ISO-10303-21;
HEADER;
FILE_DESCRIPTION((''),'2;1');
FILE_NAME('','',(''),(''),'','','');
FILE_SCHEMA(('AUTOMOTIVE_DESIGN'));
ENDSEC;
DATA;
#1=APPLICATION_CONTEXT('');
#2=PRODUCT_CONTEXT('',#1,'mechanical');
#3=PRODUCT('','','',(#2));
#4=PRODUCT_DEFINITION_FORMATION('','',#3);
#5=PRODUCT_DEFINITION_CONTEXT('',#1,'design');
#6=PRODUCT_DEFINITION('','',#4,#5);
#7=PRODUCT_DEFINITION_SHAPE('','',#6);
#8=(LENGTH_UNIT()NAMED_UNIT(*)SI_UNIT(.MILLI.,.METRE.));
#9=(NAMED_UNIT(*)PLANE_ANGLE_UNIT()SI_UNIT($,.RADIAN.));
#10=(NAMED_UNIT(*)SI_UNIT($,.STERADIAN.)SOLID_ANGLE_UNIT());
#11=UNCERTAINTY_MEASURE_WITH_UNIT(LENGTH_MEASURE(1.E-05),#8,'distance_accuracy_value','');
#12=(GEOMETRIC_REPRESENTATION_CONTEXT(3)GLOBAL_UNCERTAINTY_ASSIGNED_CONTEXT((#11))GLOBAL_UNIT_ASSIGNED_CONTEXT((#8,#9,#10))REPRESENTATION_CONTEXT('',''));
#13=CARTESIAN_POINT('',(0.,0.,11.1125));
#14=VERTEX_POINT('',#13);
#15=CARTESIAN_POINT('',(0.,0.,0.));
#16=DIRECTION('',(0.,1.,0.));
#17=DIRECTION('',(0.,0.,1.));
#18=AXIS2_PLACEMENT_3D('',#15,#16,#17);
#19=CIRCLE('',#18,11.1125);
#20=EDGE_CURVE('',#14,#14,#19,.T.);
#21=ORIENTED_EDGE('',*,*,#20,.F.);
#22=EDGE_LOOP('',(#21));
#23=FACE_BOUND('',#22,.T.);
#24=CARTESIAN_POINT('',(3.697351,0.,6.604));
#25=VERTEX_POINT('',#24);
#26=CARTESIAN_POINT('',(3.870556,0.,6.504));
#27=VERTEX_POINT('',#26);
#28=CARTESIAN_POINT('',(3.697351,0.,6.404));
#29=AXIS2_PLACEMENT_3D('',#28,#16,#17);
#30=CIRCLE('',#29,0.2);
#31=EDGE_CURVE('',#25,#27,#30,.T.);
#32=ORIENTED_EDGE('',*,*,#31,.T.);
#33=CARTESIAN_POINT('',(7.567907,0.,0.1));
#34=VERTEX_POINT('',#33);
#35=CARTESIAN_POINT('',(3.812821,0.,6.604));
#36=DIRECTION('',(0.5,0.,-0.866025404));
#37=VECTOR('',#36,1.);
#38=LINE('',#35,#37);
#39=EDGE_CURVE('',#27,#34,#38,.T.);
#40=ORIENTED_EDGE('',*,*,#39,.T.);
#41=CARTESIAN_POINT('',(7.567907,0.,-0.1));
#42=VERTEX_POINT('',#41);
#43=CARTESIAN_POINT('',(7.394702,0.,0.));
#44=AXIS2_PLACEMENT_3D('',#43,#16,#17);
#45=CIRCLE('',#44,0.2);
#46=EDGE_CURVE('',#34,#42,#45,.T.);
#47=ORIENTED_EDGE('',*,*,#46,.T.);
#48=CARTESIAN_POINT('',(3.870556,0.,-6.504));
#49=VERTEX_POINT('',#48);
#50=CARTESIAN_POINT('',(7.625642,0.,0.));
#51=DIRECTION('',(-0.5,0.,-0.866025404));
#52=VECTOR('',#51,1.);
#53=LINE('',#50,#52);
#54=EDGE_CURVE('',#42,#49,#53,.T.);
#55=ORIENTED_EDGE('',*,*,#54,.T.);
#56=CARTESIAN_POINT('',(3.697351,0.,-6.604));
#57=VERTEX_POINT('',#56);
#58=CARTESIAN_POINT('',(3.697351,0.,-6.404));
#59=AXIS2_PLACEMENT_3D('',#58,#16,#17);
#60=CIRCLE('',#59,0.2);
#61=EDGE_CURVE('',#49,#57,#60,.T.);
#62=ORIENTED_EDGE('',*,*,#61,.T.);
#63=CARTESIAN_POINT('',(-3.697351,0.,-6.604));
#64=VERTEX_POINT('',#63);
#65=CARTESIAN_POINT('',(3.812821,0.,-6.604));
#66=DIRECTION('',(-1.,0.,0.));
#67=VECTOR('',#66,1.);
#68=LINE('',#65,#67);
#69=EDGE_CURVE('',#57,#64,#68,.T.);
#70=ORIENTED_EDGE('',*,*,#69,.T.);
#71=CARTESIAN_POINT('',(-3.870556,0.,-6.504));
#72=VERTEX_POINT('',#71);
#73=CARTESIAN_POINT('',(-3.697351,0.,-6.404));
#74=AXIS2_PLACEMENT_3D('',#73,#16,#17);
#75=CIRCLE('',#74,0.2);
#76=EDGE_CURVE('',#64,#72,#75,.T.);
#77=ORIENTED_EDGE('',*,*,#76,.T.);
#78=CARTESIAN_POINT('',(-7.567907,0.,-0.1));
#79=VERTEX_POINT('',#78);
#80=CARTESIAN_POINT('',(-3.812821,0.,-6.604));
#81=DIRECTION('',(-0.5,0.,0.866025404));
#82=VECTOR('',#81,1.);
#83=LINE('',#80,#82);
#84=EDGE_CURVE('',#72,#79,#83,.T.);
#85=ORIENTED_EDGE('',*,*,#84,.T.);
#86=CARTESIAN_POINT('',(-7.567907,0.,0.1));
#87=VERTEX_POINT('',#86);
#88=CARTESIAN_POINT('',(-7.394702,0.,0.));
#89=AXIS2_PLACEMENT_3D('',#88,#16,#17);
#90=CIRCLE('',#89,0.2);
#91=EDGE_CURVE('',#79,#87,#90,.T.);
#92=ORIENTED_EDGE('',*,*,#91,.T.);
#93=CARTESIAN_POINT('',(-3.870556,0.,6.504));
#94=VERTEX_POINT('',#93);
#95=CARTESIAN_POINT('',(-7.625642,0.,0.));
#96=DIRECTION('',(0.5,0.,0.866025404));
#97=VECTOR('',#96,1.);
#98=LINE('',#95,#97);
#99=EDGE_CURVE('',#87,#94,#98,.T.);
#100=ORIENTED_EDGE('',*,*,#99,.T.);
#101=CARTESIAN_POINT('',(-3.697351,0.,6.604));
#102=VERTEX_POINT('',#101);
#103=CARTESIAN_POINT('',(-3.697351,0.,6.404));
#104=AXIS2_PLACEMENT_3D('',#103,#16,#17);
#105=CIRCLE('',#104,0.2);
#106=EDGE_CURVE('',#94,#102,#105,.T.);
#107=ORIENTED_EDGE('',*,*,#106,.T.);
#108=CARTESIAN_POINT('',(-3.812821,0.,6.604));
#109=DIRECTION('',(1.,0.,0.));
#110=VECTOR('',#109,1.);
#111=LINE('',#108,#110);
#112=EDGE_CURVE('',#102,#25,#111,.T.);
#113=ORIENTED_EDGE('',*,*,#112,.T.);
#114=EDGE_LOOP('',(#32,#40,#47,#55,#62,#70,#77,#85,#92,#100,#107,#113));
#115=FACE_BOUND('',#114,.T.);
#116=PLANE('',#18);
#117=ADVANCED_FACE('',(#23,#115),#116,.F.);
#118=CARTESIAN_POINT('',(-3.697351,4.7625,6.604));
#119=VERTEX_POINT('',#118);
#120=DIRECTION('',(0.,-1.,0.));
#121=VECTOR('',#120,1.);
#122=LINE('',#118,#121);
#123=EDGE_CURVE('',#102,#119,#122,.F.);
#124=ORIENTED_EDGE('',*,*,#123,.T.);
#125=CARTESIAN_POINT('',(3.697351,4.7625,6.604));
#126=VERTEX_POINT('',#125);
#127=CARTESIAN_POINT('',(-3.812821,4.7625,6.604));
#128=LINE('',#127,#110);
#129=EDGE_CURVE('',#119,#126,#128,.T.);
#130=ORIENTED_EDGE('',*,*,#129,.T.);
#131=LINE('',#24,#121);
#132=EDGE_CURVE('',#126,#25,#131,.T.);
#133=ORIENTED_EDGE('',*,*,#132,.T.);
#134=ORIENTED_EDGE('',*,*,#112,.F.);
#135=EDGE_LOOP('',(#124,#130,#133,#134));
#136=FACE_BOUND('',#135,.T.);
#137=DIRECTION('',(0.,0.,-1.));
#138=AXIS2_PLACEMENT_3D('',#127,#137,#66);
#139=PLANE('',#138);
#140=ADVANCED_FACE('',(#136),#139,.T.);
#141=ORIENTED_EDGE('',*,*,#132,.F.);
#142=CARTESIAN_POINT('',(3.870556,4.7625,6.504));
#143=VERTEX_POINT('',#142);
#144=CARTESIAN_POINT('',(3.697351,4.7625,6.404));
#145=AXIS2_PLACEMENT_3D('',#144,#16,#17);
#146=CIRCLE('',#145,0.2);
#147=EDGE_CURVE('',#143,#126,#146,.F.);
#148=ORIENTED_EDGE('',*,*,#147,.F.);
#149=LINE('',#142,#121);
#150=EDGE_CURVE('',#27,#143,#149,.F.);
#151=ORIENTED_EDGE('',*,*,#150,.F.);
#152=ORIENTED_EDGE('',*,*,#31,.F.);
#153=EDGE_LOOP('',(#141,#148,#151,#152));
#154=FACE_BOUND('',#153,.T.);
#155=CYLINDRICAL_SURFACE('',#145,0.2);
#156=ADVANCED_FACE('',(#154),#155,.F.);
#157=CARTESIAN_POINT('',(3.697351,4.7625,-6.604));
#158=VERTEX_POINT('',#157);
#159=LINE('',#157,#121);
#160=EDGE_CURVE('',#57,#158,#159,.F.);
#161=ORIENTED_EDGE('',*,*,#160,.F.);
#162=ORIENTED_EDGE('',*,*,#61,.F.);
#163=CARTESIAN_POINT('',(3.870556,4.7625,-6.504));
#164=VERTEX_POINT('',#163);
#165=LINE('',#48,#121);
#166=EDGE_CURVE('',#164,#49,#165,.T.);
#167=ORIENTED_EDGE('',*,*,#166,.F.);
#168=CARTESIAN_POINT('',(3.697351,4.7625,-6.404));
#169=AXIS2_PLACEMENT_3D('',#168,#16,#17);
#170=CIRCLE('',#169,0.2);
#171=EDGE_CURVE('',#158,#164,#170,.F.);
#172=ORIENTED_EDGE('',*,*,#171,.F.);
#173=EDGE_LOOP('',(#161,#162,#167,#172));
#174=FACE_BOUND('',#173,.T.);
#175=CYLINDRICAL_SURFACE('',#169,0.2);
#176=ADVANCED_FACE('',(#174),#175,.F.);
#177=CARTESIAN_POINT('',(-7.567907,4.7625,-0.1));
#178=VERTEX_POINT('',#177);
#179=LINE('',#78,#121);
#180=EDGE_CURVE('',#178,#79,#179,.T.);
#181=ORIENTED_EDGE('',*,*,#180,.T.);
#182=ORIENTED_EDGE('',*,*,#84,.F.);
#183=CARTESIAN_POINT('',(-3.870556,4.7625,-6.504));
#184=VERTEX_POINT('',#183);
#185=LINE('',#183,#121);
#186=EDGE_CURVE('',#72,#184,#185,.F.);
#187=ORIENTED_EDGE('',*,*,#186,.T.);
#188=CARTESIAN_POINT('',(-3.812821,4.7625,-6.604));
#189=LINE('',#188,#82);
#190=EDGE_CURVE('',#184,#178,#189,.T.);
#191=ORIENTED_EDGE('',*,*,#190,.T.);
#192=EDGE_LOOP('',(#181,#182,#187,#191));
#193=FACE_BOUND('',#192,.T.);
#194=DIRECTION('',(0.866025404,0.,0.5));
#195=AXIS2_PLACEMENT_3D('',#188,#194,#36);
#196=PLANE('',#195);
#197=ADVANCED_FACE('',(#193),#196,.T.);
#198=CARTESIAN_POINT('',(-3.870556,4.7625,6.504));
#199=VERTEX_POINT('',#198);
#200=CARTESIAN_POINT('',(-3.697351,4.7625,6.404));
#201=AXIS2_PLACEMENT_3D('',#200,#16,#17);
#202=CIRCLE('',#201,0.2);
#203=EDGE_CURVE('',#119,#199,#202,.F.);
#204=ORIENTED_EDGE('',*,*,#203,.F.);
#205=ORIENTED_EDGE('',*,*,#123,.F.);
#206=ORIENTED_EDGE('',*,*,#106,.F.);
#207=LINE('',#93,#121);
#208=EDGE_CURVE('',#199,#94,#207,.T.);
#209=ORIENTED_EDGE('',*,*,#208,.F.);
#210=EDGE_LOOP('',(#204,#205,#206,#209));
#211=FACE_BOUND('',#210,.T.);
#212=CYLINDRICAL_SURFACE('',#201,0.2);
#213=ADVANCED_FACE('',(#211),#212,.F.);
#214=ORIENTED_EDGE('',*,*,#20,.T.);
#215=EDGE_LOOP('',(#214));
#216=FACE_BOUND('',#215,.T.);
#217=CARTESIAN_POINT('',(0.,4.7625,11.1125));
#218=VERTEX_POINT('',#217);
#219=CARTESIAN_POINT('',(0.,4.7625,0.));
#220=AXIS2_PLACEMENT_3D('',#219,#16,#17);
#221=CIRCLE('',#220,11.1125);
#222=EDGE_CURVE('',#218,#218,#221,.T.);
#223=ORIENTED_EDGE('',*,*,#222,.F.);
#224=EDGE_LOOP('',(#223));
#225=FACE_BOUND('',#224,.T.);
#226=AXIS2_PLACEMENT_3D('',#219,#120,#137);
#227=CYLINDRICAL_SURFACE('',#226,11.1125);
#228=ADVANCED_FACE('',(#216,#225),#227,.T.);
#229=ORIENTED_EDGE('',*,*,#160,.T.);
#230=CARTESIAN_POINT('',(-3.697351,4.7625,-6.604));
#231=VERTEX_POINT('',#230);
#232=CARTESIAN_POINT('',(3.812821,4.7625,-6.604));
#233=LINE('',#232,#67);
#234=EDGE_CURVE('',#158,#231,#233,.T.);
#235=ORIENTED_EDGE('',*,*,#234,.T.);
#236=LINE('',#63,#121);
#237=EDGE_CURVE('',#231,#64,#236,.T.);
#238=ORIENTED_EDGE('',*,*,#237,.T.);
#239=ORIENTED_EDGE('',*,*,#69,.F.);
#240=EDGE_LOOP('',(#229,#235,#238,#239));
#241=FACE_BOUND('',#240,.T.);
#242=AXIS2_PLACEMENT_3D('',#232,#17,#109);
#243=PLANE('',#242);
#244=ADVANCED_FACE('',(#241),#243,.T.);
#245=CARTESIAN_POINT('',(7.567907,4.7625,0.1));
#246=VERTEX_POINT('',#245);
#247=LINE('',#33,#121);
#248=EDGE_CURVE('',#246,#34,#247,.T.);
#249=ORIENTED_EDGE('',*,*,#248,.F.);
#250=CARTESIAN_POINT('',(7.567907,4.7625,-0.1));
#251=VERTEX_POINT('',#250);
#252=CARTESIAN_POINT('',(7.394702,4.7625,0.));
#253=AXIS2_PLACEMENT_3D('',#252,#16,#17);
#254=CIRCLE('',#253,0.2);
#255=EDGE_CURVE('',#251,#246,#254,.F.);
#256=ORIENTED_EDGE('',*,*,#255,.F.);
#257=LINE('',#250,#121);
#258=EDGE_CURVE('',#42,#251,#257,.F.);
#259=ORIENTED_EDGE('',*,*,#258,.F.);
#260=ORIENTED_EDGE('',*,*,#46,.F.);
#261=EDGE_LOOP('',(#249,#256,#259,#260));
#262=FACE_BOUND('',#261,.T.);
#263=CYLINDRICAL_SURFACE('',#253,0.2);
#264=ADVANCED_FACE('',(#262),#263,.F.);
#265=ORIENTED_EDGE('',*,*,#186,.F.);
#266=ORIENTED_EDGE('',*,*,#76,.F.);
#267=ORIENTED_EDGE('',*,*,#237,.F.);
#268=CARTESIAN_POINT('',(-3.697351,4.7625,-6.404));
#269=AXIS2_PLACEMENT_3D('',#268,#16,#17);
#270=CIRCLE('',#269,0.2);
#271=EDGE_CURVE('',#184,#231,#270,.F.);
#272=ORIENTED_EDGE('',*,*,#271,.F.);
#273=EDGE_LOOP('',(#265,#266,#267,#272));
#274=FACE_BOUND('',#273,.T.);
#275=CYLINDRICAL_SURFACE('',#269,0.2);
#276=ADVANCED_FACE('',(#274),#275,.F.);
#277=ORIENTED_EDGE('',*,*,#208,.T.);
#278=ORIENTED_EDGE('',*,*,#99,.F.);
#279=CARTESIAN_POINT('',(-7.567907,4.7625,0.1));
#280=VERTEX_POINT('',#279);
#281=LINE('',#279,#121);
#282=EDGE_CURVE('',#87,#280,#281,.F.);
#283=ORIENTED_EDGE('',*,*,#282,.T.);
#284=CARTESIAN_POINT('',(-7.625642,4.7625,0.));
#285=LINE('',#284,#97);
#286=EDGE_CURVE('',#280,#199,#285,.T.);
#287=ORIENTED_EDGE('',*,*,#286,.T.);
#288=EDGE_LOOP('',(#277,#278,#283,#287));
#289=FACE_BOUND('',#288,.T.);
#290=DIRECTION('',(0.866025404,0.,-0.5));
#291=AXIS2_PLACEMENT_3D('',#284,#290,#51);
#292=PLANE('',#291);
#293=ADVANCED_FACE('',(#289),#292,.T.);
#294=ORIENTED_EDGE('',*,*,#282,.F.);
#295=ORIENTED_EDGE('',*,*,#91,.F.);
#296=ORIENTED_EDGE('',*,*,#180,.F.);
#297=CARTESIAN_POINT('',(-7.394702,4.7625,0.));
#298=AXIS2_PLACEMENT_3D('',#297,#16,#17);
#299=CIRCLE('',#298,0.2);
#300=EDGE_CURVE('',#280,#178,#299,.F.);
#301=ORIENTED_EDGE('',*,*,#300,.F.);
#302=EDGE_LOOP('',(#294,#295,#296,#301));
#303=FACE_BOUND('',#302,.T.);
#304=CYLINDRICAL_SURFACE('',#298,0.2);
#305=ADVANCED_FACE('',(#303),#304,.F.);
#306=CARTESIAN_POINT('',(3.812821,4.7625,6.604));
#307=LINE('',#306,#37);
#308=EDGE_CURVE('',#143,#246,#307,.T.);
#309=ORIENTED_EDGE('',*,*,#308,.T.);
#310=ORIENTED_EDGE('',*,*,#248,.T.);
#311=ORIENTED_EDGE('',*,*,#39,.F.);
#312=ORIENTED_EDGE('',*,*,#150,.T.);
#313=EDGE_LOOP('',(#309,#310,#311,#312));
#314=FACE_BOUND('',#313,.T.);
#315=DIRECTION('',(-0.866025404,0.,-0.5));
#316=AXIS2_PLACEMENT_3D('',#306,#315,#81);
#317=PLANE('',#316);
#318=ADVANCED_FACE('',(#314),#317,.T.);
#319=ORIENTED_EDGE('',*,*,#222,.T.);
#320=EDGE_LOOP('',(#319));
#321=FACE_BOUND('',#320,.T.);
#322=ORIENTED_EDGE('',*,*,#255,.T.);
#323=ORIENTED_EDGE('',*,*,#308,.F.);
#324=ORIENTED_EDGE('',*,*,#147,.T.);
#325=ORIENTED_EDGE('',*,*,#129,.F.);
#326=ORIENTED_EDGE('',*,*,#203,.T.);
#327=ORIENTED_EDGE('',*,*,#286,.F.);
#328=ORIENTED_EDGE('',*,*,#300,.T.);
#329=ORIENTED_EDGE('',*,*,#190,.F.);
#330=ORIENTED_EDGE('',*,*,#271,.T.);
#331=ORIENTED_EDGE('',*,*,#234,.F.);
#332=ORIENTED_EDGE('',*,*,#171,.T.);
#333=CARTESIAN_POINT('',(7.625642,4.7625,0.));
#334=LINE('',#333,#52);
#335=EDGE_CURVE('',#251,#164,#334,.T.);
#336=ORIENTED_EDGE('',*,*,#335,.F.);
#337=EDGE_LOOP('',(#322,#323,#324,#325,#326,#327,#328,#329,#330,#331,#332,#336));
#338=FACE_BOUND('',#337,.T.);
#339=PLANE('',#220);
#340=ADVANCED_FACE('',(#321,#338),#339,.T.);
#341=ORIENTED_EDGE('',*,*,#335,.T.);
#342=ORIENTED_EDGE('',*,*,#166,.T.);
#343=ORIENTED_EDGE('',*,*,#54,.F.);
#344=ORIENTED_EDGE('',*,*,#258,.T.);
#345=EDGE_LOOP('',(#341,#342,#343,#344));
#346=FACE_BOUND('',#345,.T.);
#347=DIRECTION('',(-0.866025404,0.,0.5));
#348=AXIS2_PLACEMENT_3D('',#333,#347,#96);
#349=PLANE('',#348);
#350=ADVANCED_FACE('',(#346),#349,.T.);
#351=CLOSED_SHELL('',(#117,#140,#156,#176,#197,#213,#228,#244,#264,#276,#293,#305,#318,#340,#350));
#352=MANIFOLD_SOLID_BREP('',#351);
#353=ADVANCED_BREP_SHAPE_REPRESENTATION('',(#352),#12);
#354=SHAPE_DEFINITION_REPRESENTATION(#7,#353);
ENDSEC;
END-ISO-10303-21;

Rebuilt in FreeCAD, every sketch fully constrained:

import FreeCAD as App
import Part
import Sketcher
from FreeCAD import Vector
Q = App.Units.Quantity


def edges_at(feature, points):
    """Names of the edges that pass closest to the given points."""
    edges = feature.Shape.Edges
    near = lambda p: min(range(len(edges)), key=lambda i: edges[i].distToShape(Part.Vertex(*p))[0])
    return sorted({f"Edge{near(p) + 1}" for p in points})


def add_polygon(sketch, points):
    """Adds a closed chain of lines whose ends are joined by coincident constraints."""
    first, n = sketch.GeometryCount, len(points)
    for a, b in zip(points, points[1:] + points[:1]):
        sketch.addGeometry(Part.LineSegment(App.Vector(*a, 0), App.Vector(*b, 0)), False)
    for i in range(n):
        sketch.addConstraint(Sketcher.Constraint("Coincident", first + i, 2, first + (i + 1) % n, 1))

doc = App.newDocument("Part")
body = doc.addObject("PartDesign::Body", "Body")

sketch1 = doc.addObject("Sketcher::SketchObject", "Sketch")
body.addObject(sketch1)
sketch1.AttachmentSupport = (doc.XZ_Plane, [""])
sketch1.MapMode = "FlatFace"
sketch1.addGeometry(Part.Circle(Vector(0, 0, 0), Vector(0, 0, 1), 11), False)
add_polygon(sketch1, [(4, -7), (8, 0), (4, 7), (-4, 7), (-8, 0), (-4, -7)])
sketch1.addConstraint(Sketcher.Constraint("Horizontal", 3))
sketch1.addConstraint(Sketcher.Constraint("Horizontal", 6))
sketch1.addConstraint(Sketcher.Constraint("Coincident", 0, 3, -1, 1))
sketch1.addConstraint(Sketcher.Constraint("Symmetric", 1, 2, 4, 2, -1, 1))
sketch1.addConstraint(Sketcher.Constraint("Symmetric", 2, 2, 5, 2, -1, 1))
sketch1.addConstraint(Sketcher.Constraint("PointOnObject", 1, 2, -1))
sketch1.addConstraint(Sketcher.Constraint("Parallel", 1, 4))
sketch1.addConstraint(Sketcher.Constraint("Vertical", 3, 2, 5, 2))
sketch1.addConstraint(Sketcher.Constraint("Diameter", 0, Q("0.875 in")))
sketch1.addConstraint(Sketcher.Constraint("Angle", 1, Q("60 deg")))
sketch1.addConstraint(Sketcher.Constraint("DistanceY", -1, 1, 2, 2, Q("0.26 in")))
sketch1.addConstraint(Sketcher.Constraint("DistanceX", 3, 2, 3, 1, 7.625642))
pad1 = doc.addObject("PartDesign::Pad", "Pad")
body.addObject(pad1)
pad1.Profile = sketch1
pad1.Length = Q("0.1875 in")
pad1.Reversed = True
doc.recompute()

fillet = doc.addObject("PartDesign::Fillet", "Fillet")
body.addObject(fillet)
fillet.Base = (pad1, edges_at(pad1, [
    (7.626, 2.381, 0),
    (3.813, 2.381, -6.604),
    (-3.813, 2.381, -6.604),
    (-7.626, 2.381, 0),
    (-3.813, 2.381, 6.604),
    (3.813, 2.381, 6.604),
]))
fillet.Radius = 0.2

doc.recompute()
